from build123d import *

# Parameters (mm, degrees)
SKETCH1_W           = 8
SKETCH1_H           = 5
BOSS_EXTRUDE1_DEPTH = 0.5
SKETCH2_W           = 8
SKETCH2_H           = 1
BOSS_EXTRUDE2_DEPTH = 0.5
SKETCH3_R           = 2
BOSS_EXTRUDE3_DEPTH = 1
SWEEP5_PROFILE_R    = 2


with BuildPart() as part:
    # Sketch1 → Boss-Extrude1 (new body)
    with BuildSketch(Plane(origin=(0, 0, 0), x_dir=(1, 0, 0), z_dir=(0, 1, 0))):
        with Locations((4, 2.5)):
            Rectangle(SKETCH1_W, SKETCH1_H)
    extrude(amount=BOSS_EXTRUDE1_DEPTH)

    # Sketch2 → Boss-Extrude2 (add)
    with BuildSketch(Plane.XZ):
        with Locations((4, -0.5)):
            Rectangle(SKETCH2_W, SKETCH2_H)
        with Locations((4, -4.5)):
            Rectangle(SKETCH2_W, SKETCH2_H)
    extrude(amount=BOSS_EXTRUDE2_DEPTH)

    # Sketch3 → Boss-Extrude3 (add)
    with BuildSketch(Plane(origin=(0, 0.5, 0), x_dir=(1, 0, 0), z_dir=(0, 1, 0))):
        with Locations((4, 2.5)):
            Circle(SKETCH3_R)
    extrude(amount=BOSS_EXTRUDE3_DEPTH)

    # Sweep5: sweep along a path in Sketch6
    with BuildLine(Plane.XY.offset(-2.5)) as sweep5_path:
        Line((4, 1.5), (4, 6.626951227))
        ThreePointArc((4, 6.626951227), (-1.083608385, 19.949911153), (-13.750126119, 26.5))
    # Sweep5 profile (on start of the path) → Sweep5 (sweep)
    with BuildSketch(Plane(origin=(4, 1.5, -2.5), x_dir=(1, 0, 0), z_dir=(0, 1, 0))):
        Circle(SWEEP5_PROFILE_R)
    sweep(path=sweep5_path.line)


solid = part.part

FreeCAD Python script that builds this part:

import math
import FreeCAD as App
import Part
import Sketcher
Q = App.Units.Quantity


def add_polygon(sketch, points):
    """Adds a closed chain of lines whose ends are joined by coincident constraints."""
    first, n = sketch.GeometryCount, len(points)
    for a, b in zip(points, points[1:] + points[:1]):
        sketch.addGeometry(Part.LineSegment(App.Vector(*a, 0), App.Vector(*b, 0)), False)
    for i in range(n):
        sketch.addConstraint(Sketcher.Constraint("Coincident", first + i, 2, first + (i + 1) % n, 1))

doc = App.newDocument("Part")
body = doc.addObject("PartDesign::Body", "Body")

# Sketch on XZ plane
sketch1 = doc.addObject("Sketcher::SketchObject", "Sketch")
body.addObject(sketch1)
sketch1.AttachmentSupport = (doc.XZ_Plane, [""])
sketch1.MapMode = "FlatFace"
add_polygon(sketch1, [(0, -5), (0, 0), (8, 0), (8, -5)])  # lines 0-3
sketch1.addConstraint(Sketcher.Constraint("Vertical", 0))
sketch1.addConstraint(Sketcher.Constraint("Horizontal", 1))
sketch1.addConstraint(Sketcher.Constraint("Vertical", 2))
sketch1.addConstraint(Sketcher.Constraint("Horizontal", 3))
sketch1.addConstraint(Sketcher.Constraint("Coincident", 0, 2, -1, 1))
sketch1.addConstraint(Sketcher.Constraint("DistanceX", 1, 1, 1, 2, Q("8 mm")))
sketch1.addConstraint(Sketcher.Constraint("DistanceY", 0, 1, 0, 2, Q("5 mm")))
pad1 = doc.addObject("PartDesign::Pad", "Pad")
body.addObject(pad1)
pad1.Profile = sketch1
pad1.Length = 0.5
pad1.Reversed = True

# Sketch on XZ plane
sketch2 = doc.addObject("Sketcher::SketchObject", "Sketch001")
body.addObject(sketch2)
sketch2.AttachmentSupport = (doc.XZ_Plane, [""])
sketch2.MapMode = "FlatFace"
add_polygon(sketch2, [(0, 0), (0, -1), (8, -1), (8, 0)])  # lines 0-3
add_polygon(sketch2, [(0, -4), (0, -5), (8, -5), (8, -4)])  # lines 4-7
sketch2.addConstraint(Sketcher.Constraint("Vertical", 0))
sketch2.addConstraint(Sketcher.Constraint("Horizontal", 1))
sketch2.addConstraint(Sketcher.Constraint("Vertical", 2))
sketch2.addConstraint(Sketcher.Constraint("Horizontal", 3))
sketch2.addConstraint(Sketcher.Constraint("Vertical", 4))
sketch2.addConstraint(Sketcher.Constraint("Horizontal", 5))
sketch2.addConstraint(Sketcher.Constraint("Vertical", 6))
sketch2.addConstraint(Sketcher.Constraint("Horizontal", 7))
sketch2.addConstraint(Sketcher.Constraint("Coincident", 3, 2, -1, 1))
sketch2.addConstraint(Sketcher.Constraint("PointOnObject", 4, 2, -2))
sketch2.addConstraint(Sketcher.Constraint("Vertical", 2, 2, 5, 2))
sketch2.addConstraint(Sketcher.Constraint("Equal", 2, 4))
sketch2.addConstraint(Sketcher.Constraint("DistanceX", 1, 1, 1, 2, Q("8 mm")))
sketch2.addConstraint(Sketcher.Constraint("DistanceY", 0, 2, 0, 1, Q("1 mm")))
sketch2.addConstraint(Sketcher.Constraint("DistanceY", 4, 2, -1, 1, Q("5 mm")))
pad2 = doc.addObject("PartDesign::Pad", "Pad001")
body.addObject(pad2)
pad2.Profile = sketch2
pad2.Length = 0.5

# Sketch on XZ plane
sketch3 = doc.addObject("Sketcher::SketchObject", "Sketch002")
body.addObject(sketch3)
sketch3.AttachmentSupport = (doc.XZ_Plane, [""])
sketch3.MapMode = "FlatFace"
sketch3.AttachmentOffset = App.Placement(App.Vector(0, 0, -0.5), App.Rotation())
sketch3.addGeometry(Part.Circle(App.Vector(4, -2.5, 0), App.Vector(0, 0, 1), 2), False)
sketch3.addConstraint(Sketcher.Constraint("Diameter", 0, Q("4 mm")))
sketch3.addConstraint(Sketcher.Constraint("DistanceX", -1, 1, 0, 3, Q("4 mm")))
sketch3.addConstraint(Sketcher.Constraint("DistanceY", 0, 3, -1, 1, Q("2.5 mm")))
pad3 = doc.addObject("PartDesign::Pad", "Pad002")
body.addObject(pad3)
pad3.Profile = sketch3
pad3.Length = 1
pad3.Reversed = True

# Sketch on XZ plane
sketch4 = doc.addObject("Sketcher::SketchObject", "Sketch003")
body.addObject(sketch4)
sketch4.AttachmentSupport = (doc.XZ_Plane, [""])
sketch4.MapMode = "FlatFace"
sketch4.AttachmentOffset = App.Placement(App.Vector(0, 0, -1.5), App.Rotation())
sketch4.addGeometry(Part.Circle(App.Vector(4, -2.5, 0), App.Vector(0, 0, 1), 2), False)
sketch4.addConstraint(Sketcher.Constraint("Diameter", 0, Q("4 mm")))
sketch4.addConstraint(Sketcher.Constraint("DistanceX", -1, 1, 0, 3, Q("4 mm")))
sketch4.addConstraint(Sketcher.Constraint("DistanceY", 0, 3, -1, 1, Q("2.5 mm")))

# Sketch on XY plane
sketch5 = doc.addObject("Sketcher::SketchObject", "Sketch004")
body.addObject(sketch5)
sketch5.AttachmentSupport = (doc.XY_Plane, [""])
sketch5.MapMode = "FlatFace"
sketch5.AttachmentOffset = App.Placement(App.Vector(0, 0, -2.5), App.Rotation())
sketch5.addGeometry(Part.LineSegment(App.Vector(4, 2, 0), App.Vector(4, 7, 0)), False)
sketch5.addGeometry(Part.ArcOfCircle(Part.Circle(App.Vector(-16, 7, 0), App.Vector(0, 0, 1), 20), math.radians(0), math.radians(84)), False)
sketch5.addConstraint(Sketcher.Constraint("Tangent", 0, 2, 1, 1))
sketch5.addConstraint(Sketcher.Constraint("Vertical", 0))
sketch5.addConstraint(Sketcher.Constraint("Radius", 1, Q("20 mm")))
sketch5.addConstraint(Sketcher.Constraint("DistanceX", 1, 3, -1, 1, Q("16 mm")))
sketch5.addConstraint(Sketcher.Constraint("DistanceY", 0, 1, 1, 2, Q("25 mm")))
sketch5.addConstraint(Sketcher.Constraint("DistanceY", -1, 1, 0, 1, Q("1.5 mm")))
sketch5.addConstraint(Sketcher.Constraint("DistanceY", 0, 1, 0, 2, Q("5.126951 mm")))
doc.recompute()

additivepipe = doc.addObject("PartDesign::AdditivePipe", "AdditivePipe")
body.addObject(additivepipe)
additivepipe.Profile = sketch4
additivepipe.Spine = (sketch5, ["Edge1", "Edge2"])

doc.recompute()
